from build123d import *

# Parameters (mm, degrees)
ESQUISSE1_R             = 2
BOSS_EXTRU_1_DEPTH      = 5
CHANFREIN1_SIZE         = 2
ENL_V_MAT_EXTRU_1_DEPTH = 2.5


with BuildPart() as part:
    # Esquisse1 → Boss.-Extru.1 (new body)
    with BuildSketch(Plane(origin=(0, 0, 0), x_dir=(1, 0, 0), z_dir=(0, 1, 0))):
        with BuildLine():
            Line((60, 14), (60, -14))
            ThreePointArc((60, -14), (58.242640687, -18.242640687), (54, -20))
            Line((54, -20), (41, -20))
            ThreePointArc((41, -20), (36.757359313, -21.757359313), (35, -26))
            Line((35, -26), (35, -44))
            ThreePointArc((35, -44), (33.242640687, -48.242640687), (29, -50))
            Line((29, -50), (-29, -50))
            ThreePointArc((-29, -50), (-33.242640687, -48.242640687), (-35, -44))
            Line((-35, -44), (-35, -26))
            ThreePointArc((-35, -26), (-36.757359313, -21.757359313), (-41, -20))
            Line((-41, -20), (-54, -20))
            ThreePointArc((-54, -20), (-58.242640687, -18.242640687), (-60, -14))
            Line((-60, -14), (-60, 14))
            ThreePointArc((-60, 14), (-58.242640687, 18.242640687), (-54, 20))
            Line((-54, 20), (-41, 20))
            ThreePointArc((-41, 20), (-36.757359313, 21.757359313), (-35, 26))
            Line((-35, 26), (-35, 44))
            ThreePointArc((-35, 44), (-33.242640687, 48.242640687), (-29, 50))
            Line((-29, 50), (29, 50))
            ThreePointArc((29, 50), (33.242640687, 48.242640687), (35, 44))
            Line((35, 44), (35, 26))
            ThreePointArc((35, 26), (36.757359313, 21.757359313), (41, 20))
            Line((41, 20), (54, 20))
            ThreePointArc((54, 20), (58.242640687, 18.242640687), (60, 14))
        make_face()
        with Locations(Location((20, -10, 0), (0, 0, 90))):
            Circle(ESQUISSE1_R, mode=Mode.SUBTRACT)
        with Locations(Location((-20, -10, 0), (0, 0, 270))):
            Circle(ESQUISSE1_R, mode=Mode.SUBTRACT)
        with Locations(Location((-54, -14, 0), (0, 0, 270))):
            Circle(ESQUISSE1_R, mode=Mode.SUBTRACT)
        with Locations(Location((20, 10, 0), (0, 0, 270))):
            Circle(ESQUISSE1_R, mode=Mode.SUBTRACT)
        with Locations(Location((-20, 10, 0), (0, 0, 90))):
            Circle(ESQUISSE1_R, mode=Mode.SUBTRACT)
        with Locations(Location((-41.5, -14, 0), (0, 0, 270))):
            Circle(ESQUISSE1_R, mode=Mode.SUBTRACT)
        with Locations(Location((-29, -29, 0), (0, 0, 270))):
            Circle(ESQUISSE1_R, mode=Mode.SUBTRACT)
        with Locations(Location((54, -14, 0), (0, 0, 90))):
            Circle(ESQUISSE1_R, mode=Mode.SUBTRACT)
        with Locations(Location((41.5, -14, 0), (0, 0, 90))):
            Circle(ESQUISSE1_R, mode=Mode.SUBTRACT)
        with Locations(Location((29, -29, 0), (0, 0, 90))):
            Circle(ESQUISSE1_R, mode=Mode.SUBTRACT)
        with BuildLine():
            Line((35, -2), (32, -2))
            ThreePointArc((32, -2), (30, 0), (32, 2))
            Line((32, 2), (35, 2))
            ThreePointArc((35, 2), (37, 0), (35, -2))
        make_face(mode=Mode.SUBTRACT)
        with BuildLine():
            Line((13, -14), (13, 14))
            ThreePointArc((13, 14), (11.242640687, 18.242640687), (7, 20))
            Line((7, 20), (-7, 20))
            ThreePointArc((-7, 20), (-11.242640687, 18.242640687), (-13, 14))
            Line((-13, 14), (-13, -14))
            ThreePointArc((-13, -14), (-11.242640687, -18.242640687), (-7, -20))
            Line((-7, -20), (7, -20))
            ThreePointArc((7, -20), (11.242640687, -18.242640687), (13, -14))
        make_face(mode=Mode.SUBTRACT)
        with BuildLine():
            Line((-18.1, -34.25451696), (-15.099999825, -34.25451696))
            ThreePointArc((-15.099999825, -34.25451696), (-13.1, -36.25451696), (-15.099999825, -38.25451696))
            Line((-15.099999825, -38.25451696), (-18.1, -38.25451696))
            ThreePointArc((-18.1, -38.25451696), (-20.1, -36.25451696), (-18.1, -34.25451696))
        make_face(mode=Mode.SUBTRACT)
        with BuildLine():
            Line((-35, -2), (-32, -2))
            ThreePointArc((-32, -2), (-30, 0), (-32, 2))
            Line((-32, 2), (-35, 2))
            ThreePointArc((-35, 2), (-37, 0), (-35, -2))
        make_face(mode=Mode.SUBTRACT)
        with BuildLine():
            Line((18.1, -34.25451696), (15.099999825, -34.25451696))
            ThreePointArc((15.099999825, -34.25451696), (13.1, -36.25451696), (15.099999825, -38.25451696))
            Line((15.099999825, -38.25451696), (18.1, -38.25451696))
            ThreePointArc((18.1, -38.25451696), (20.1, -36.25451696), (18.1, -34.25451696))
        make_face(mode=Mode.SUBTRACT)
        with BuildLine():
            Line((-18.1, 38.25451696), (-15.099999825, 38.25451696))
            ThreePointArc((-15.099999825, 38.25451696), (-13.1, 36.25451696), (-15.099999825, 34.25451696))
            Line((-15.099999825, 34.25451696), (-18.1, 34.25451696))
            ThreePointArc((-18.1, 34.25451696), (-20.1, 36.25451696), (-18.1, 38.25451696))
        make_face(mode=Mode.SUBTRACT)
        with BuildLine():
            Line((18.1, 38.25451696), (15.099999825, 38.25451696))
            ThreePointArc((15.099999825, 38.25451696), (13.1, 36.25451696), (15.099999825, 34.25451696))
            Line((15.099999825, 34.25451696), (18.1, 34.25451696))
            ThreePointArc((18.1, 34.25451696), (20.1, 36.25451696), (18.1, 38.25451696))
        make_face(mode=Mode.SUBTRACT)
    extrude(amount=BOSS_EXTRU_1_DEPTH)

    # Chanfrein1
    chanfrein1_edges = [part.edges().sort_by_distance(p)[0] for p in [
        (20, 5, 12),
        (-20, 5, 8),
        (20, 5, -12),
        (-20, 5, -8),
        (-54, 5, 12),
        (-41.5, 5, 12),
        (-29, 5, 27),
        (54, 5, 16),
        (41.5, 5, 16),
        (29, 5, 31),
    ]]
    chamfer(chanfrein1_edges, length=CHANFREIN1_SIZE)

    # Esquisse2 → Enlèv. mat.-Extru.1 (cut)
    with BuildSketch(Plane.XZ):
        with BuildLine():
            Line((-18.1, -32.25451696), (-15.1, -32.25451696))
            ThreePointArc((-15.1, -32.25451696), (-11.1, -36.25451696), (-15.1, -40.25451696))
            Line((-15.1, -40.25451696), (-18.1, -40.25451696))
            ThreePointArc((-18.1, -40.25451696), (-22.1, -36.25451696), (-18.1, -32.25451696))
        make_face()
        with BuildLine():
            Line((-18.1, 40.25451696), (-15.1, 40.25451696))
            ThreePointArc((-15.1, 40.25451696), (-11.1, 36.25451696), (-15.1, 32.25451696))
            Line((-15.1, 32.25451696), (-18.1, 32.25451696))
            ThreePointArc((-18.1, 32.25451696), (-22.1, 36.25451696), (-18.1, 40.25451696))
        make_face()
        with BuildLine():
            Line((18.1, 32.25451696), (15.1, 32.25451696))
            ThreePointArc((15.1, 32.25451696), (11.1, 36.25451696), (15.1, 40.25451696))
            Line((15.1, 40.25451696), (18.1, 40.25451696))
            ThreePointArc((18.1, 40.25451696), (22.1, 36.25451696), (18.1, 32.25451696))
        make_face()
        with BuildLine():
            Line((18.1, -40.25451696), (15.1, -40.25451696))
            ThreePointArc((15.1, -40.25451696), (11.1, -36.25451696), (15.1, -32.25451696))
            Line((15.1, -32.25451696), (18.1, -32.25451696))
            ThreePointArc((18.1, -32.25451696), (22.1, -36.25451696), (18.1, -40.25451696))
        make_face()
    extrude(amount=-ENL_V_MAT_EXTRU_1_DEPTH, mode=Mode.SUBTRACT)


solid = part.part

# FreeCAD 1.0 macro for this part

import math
import FreeCAD as App
import Part
import Sketcher
from FreeCAD import Vector
Q = App.Units.Quantity


def edges_at(feature, points):
    """Names of the edges that pass closest to the given points."""
    edges = feature.Shape.Edges
    near = lambda p: min(range(len(edges)), key=lambda i: edges[i].distToShape(Part.Vertex(*p))[0])
    return sorted({f"Edge{near(p) + 1}" for p in points})

doc = App.newDocument("Part")
params = doc.addObject("Spreadsheet::Sheet", "Params")
for row, (alias, value) in enumerate([
    ("sketch1_diameter", "4 mm"),
    ("sketch1_radius", "6 mm"),
    ("sketch1_width", "13 mm"),
    ("sketch1_width2", "58 mm"),
    ("sketch1_width3", "3 mm"),
    ("pad1_length", "5 mm"),
    ("chamfer_size", "2 mm"),
    ("sketch2_radius", "4 mm"),
    ("sketch2_width", "3 mm"),
    ("pocket1_length", "2.5 mm"),
], start=1):
    params.set(f"A{row}", alias)
    params.set(f"B{row}", "=" + value)
    params.setAlias(f"B{row}", alias)

body = doc.addObject("PartDesign::Body", "Body")

sketch1 = body.newObject("Sketcher::SketchObject", "Sketch")
sketch1.AttachmentSupport = (doc.getObject("XZ_Plane"), [""])
sketch1.MapMode = "FlatFace"
sketch1.addGeometry([
    Part.LineSegment(Vector(60, 14, 0), Vector(60, -14, 0)),
    Part.ArcOfCircle(Part.Circle(Vector(54, -14, 0), Vector(0, 0, 1), 6), math.radians(-90), math.radians(0)),
    Part.LineSegment(Vector(54, -20, 0), Vector(41, -20, 0)),
    Part.ArcOfCircle(Part.Circle(Vector(41, -26, 0), Vector(0, 0, 1), 6), math.radians(90), math.radians(180)),
    Part.LineSegment(Vector(35, -26, 0), Vector(35, -44, 0)),
    Part.ArcOfCircle(Part.Circle(Vector(29, -44, 0), Vector(0, 0, 1), 6), math.radians(-90), math.radians(0)),
    Part.LineSegment(Vector(29, -50, 0), Vector(-29, -50, 0)),
    Part.ArcOfCircle(Part.Circle(Vector(-29, -44, 0), Vector(0, 0, 1), 6), math.radians(180), math.radians(270)),
    Part.LineSegment(Vector(-35, -44, 0), Vector(-35, -26, 0)),
    Part.ArcOfCircle(Part.Circle(Vector(-41, -26, 0), Vector(0, 0, 1), 6), math.radians(0), math.radians(90)),
    Part.LineSegment(Vector(-41, -20, 0), Vector(-54, -20, 0)),
    Part.ArcOfCircle(Part.Circle(Vector(-54, -14, 0), Vector(0, 0, 1), 6), math.radians(180), math.radians(270)),
    Part.LineSegment(Vector(-60, -14, 0), Vector(-60, 14, 0)),
    Part.ArcOfCircle(Part.Circle(Vector(-54, 14, 0), Vector(0, 0, 1), 6), math.radians(90), math.radians(180)),
    Part.LineSegment(Vector(-54, 20, 0), Vector(-41, 20, 0)),
    Part.ArcOfCircle(Part.Circle(Vector(-41, 26, 0), Vector(0, 0, 1), 6), math.radians(-90), math.radians(0)),
    Part.LineSegment(Vector(-35, 26, 0), Vector(-35, 44, 0)),
    Part.ArcOfCircle(Part.Circle(Vector(-29, 44, 0), Vector(0, 0, 1), 6), math.radians(90), math.radians(180)),
    Part.LineSegment(Vector(-29, 50, 0), Vector(29, 50, 0)),
    Part.ArcOfCircle(Part.Circle(Vector(29, 44, 0), Vector(0, 0, 1), 6), math.radians(0), math.radians(90)),
    Part.LineSegment(Vector(35, 44, 0), Vector(35, 26, 0)),
    Part.ArcOfCircle(Part.Circle(Vector(41, 26, 0), Vector(0, 0, 1), 6), math.radians(180), math.radians(270)),
    Part.LineSegment(Vector(41, 20, 0), Vector(54, 20, 0)),
    Part.ArcOfCircle(Part.Circle(Vector(54, 14, 0), Vector(0, 0, 1), 6), math.radians(0), math.radians(90)),
    Part.Circle(Vector(29, 29, 0), Vector(0, 0, 1), 2),
    Part.ArcOfCircle(Part.Circle(Vector(18.1, 36.3, 0), Vector(0, 0, 1), 2), math.radians(-90), math.radians(90)),
    Part.LineSegment(Vector(18.1, 38.3, 0), Vector(15.1, 38.3, 0)),
    Part.ArcOfCircle(Part.Circle(Vector(15.1, 36.3, 0), Vector(0, 0, 1), 2), math.radians(90), math.radians(270)),
    Part.LineSegment(Vector(15.1, 34.3, 0), Vector(18.1, 34.3, 0)),
    Part.Circle(Vector(54, 14, 0), Vector(0, 0, 1), 2),
    Part.Circle(Vector(41.5, 14, 0), Vector(0, 0, 1), 2),
    Part.Circle(Vector(20, 10, 0), Vector(0, 0, 1), 2),
    Part.LineSegment(Vector(-18.1, 34.3, 0), Vector(-15.1, 34.3, 0)),
    Part.ArcOfCircle(Part.Circle(Vector(-15.1, 36.3, 0), Vector(0, 0, 1), 2), math.radians(-90), math.radians(90)),
    Part.LineSegment(Vector(-15.1, 38.3, 0), Vector(-18.1, 38.3, 0)),
    Part.ArcOfCircle(Part.Circle(Vector(-18.1, 36.3, 0), Vector(0, 0, 1), 2), math.radians(90), math.radians(270)),
    Part.Circle(Vector(-29, 29, 0), Vector(0, 0, 1), 2),
    Part.Circle(Vector(-20, 10, 0), Vector(0, 0, 1), 2),
    Part.ArcOfCircle(Part.Circle(Vector(7, 14, 0), Vector(0, 0, 1), 6), math.radians(0), math.radians(90)),
    Part.LineSegment(Vector(7, 20, 0), Vector(-7, 20, 0)),
    Part.ArcOfCircle(Part.Circle(Vector(-7, 14, 0), Vector(0, 0, 1), 6), math.radians(90), math.radians(180)),
    Part.LineSegment(Vector(-13, 14, 0), Vector(-13, -14, 0)),
    Part.ArcOfCircle(Part.Circle(Vector(-7, -14, 0), Vector(0, 0, 1), 6), math.radians(180), math.radians(270)),
    Part.LineSegment(Vector(-7, -20, 0), Vector(7, -20, 0)),
    Part.ArcOfCircle(Part.Circle(Vector(7, -14, 0), Vector(0, 0, 1), 6), math.radians(-90), math.radians(0)),
    Part.LineSegment(Vector(13, -14, 0), Vector(13, 14, 0)),
    Part.Circle(Vector(-41.5, 14, 0), Vector(0, 0, 1), 2),
    Part.Circle(Vector(-54, 14, 0), Vector(0, 0, 1), 2),
    Part.LineSegment(Vector(35, 2, 0), Vector(32, 2, 0)),
    Part.ArcOfCircle(Part.Circle(Vector(32, 0, 0), Vector(0, 0, 1), 2), math.radians(90), math.radians(270)),
    Part.LineSegment(Vector(32, -2, 0), Vector(35, -2, 0)),
    Part.ArcOfCircle(Part.Circle(Vector(35, 0, 0), Vector(0, 0, 1), 2), math.radians(-90), math.radians(90)),
    Part.Circle(Vector(20, -10, 0), Vector(0, 0, 1), 2),
    Part.ArcOfCircle(Part.Circle(Vector(18.1, -36.3, 0), Vector(0, 0, 1), 2), math.radians(-90), math.radians(90)),
    Part.LineSegment(Vector(18.1, -34.3, 0), Vector(15.1, -34.3, 0)),
    Part.ArcOfCircle(Part.Circle(Vector(15.1, -36.3, 0), Vector(0, 0, 1), 2), math.radians(90), math.radians(270)),
    Part.LineSegment(Vector(15.1, -38.3, 0), Vector(18.1, -38.3, 0)),
    Part.Circle(Vector(-20, -10, 0), Vector(0, 0, 1), 2),
    Part.ArcOfCircle(Part.Circle(Vector(-35, 0, 0), Vector(0, 0, 1), 2), math.radians(90), math.radians(270)),
    Part.LineSegment(Vector(-35, -2, 0), Vector(-32, -2, 0)),
    Part.ArcOfCircle(Part.Circle(Vector(-32, 0, 0), Vector(0, 0, 1), 2), math.radians(-90), math.radians(90)),
    Part.LineSegment(Vector(-32, 2, 0), Vector(-35, 2, 0)),
    Part.LineSegment(Vector(-18.1, -38.3, 0), Vector(-15.1, -38.3, 0)),
    Part.ArcOfCircle(Part.Circle(Vector(-15.1, -36.3, 0), Vector(0, 0, 1), 2), math.radians(-90), math.radians(90)),
    Part.LineSegment(Vector(-15.1, -34.3, 0), Vector(-18.1, -34.3, 0)),
    Part.ArcOfCircle(Part.Circle(Vector(-18.1, -36.3, 0), Vector(0, 0, 1), 2), math.radians(90), math.radians(270)),
], False)
sketch1.addConstraint([
    Sketcher.Constraint("Tangent", 0, 2, 1, 2),
    Sketcher.Constraint("Tangent", 1, 1, 2, 1),
    Sketcher.Constraint("Tangent", 2, 2, 3, 1),
    Sketcher.Constraint("Tangent", 3, 2, 4, 1),
    Sketcher.Constraint("Tangent", 4, 2, 5, 2),
    Sketcher.Constraint("Tangent", 5, 1, 6, 1),
    Sketcher.Constraint("Tangent", 6, 2, 7, 2),
    Sketcher.Constraint("Tangent", 7, 1, 8, 1),
    Sketcher.Constraint("Tangent", 8, 2, 9, 1),
    Sketcher.Constraint("Tangent", 9, 2, 10, 1),
    Sketcher.Constraint("Tangent", 10, 2, 11, 2),
    Sketcher.Constraint("Tangent", 11, 1, 12, 1),
    Sketcher.Constraint("Tangent", 12, 2, 13, 2),
    Sketcher.Constraint("Tangent", 13, 1, 14, 1),
    Sketcher.Constraint("Tangent", 14, 2, 15, 1),
    Sketcher.Constraint("Tangent", 15, 2, 16, 1),
    Sketcher.Constraint("Tangent", 16, 2, 17, 2),
    Sketcher.Constraint("Tangent", 17, 1, 18, 1),
    Sketcher.Constraint("Tangent", 18, 2, 19, 2),
    Sketcher.Constraint("Tangent", 19, 1, 20, 1),
    Sketcher.Constraint("Tangent", 20, 2, 21, 1),
    Sketcher.Constraint("Tangent", 21, 2, 22, 1),
    Sketcher.Constraint("Tangent", 22, 2, 23, 2),
    Sketcher.Constraint("Tangent", 23, 1, 0, 1),
    Sketcher.Constraint("Tangent", 25, 2, 26, 1),
    Sketcher.Constraint("Tangent", 26, 2, 27, 1),
    Sketcher.Constraint("Tangent", 27, 2, 28, 1),
    Sketcher.Constraint("Tangent", 28, 2, 25, 1),
    Sketcher.Constraint("Tangent", 32, 2, 33, 1),
    Sketcher.Constraint("Tangent", 33, 2, 34, 1),
    Sketcher.Constraint("Tangent", 34, 2, 35, 1),
    Sketcher.Constraint("Tangent", 35, 2, 32, 1),
    Sketcher.Constraint("Tangent", 38, 2, 39, 1),
    Sketcher.Constraint("Tangent", 39, 2, 40, 1),
    Sketcher.Constraint("Tangent", 40, 2, 41, 1),
    Sketcher.Constraint("Tangent", 41, 2, 42, 1),
    Sketcher.Constraint("Tangent", 42, 2, 43, 1),
    Sketcher.Constraint("Tangent", 43, 2, 44, 1),
    Sketcher.Constraint("Tangent", 44, 2, 45, 1),
    Sketcher.Constraint("Tangent", 45, 2, 38, 1),
    Sketcher.Constraint("Tangent", 48, 2, 49, 1),
    Sketcher.Constraint("Tangent", 49, 2, 50, 1),
    Sketcher.Constraint("Tangent", 50, 2, 51, 1),
    Sketcher.Constraint("Tangent", 51, 2, 48, 1),
    Sketcher.Constraint("Tangent", 53, 2, 54, 1),
    Sketcher.Constraint("Tangent", 54, 2, 55, 1),
    Sketcher.Constraint("Tangent", 55, 2, 56, 1),
    Sketcher.Constraint("Tangent", 56, 2, 53, 1),
    Sketcher.Constraint("Tangent", 58, 2, 59, 1),
    Sketcher.Constraint("Tangent", 59, 2, 60, 1),
    Sketcher.Constraint("Tangent", 60, 2, 61, 1),
    Sketcher.Constraint("Tangent", 61, 2, 58, 1),
    Sketcher.Constraint("Tangent", 62, 2, 63, 1),
    Sketcher.Constraint("Tangent", 63, 2, 64, 1),
    Sketcher.Constraint("Tangent", 64, 2, 65, 1),
    Sketcher.Constraint("Tangent", 65, 2, 62, 1),
    Sketcher.Constraint("Vertical", 0),
    Sketcher.Constraint("Horizontal", 2),
    Sketcher.Constraint("Vertical", 4),
    Sketcher.Constraint("Horizontal", 6),
    Sketcher.Constraint("Vertical", 8),
    Sketcher.Constraint("Horizontal", 10),
    Sketcher.Constraint("Vertical", 12),
    Sketcher.Constraint("Horizontal", 14),
    Sketcher.Constraint("Vertical", 16),
    Sketcher.Constraint("Horizontal", 18),
    Sketcher.Constraint("Vertical", 20),
    Sketcher.Constraint("Horizontal", 22),
    Sketcher.Constraint("Horizontal", 26),
    Sketcher.Constraint("Horizontal", 28),
    Sketcher.Constraint("Horizontal", 32),
    Sketcher.Constraint("Horizontal", 34),
    Sketcher.Constraint("Horizontal", 39),
    Sketcher.Constraint("Vertical", 41),
    Sketcher.Constraint("Horizontal", 43),
    Sketcher.Constraint("Vertical", 45),
    Sketcher.Constraint("Horizontal", 48),
    Sketcher.Constraint("Horizontal", 50),
    Sketcher.Constraint("Horizontal", 54),
    Sketcher.Constraint("Horizontal", 56),
    Sketcher.Constraint("Horizontal", 59),
    Sketcher.Constraint("Horizontal", 61),
    Sketcher.Constraint("Horizontal", 62),
    Sketcher.Constraint("Horizontal", 64),
    Sketcher.Constraint("Coincident", 29, 3, 23, 3),
    Sketcher.Constraint("Coincident", 47, 3, 13, 3),
    Sketcher.Constraint("Equal", 1, 3),
    Sketcher.Constraint("Equal", 3, 5),
    Sketcher.Constraint("Equal", 5, 7),
    Sketcher.Constraint("Equal", 7, 9),
    Sketcher.Constraint("Equal", 9, 11),
    Sketcher.Constraint("Equal", 11, 13),
    Sketcher.Constraint("Equal", 13, 15),
    Sketcher.Constraint("Equal", 15, 17),
    Sketcher.Constraint("Equal", 17, 19),
    Sketcher.Constraint("Equal", 19, 21),
    Sketcher.Constraint("Equal", 21, 23),
    Sketcher.Constraint("Equal", 24, 25),
    Sketcher.Constraint("Equal", 27, 29),
    Sketcher.Constraint("Equal", 29, 30),
    Sketcher.Constraint("Equal", 30, 31),
    Sketcher.Constraint("Equal", 31, 33),
    Sketcher.Constraint("Equal", 35, 36),
    Sketcher.Constraint("Equal", 36, 37),
    Sketcher.Constraint("Equal", 23, 38),
    Sketcher.Constraint("Equal", 38, 40),
    Sketcher.Constraint("Equal", 40, 42),
    Sketcher.Constraint("Equal", 42, 44),
    Sketcher.Constraint("Equal", 37, 46),
    Sketcher.Constraint("Equal", 46, 47),
    Sketcher.Constraint("Equal", 47, 49),
    Sketcher.Constraint("Equal", 51, 52),
    Sketcher.Constraint("Equal", 52, 53),
    Sketcher.Constraint("Equal", 55, 57),
    Sketcher.Constraint("Equal", 57, 58),
    Sketcher.Constraint("Equal", 60, 63),
    Sketcher.Constraint("Symmetric", 1, 3, 13, 3, -1, 1),
    Sketcher.Constraint("Symmetric", 5, 3, 17, 3, -1, 1),
    Sketcher.Constraint("Symmetric", 9, 3, 21, 3, -1, 1),
    Sketcher.Constraint("Symmetric", 38, 3, 42, 3, -1, 1),
    Sketcher.Constraint("Symmetric", 37, 3, 52, 3, -1, 1),
    Sketcher.Constraint("Symmetric", 35, 3, 53, 3, -1, 1),
    Sketcher.Constraint("Symmetric", 31, 3, 57, 3, -1, 1),
    Sketcher.Constraint("Symmetric", 51, 3, 58, 3, -1, 1),
    Sketcher.Constraint("Symmetric", 27, 3, 63, 3, -1, 1),
    Sketcher.Constraint("Symmetric", 3, 3, 9, 3, -2),
    Sketcher.Constraint("Symmetric", 27, 3, 33, 3, -2),
    Sketcher.Constraint("Symmetric", 24, 3, 36, 3, -2),
    Sketcher.Constraint("Symmetric", 31, 3, 37, 3, -2),
    Sketcher.Constraint("Symmetric", 30, 3, 46, 3, -2),
    Sketcher.Constraint("Symmetric", 49, 3, 60, 3, -2),
    Sketcher.Constraint("Horizontal", 29, 3, 30, 3),
    Sketcher.Constraint("Horizontal", 30, 3, 38, 3),
    Sketcher.Constraint("Vertical", 19, 3, 24, 3),
    Sketcher.Constraint("Vertical", 25, 3, 53, 3),
    Sketcher.Constraint("Vertical", 27, 3, 55, 3),
    Sketcher.Constraint("Vertical", 35, 3, 65, 3),
    Sketcher.Constraint("Vertical", 51, 3, 3, 2),
    Sketcher.Constraint("Equal", 34, 48),
    Sketcher.Constraint("Diameter", 24, Q("4 mm")),
    Sketcher.Constraint("Radius", 1, Q("6 mm")),
    Sketcher.Constraint("DistanceX", 2, 2, 2, 1, Q("13 mm")),
    Sketcher.Constraint("DistanceX", 6, 2, 6, 1, Q("58 mm")),
    Sketcher.Constraint("DistanceX", 26, 2, 26, 1, Q("3 mm")),
    Sketcher.Constraint("DistanceX", 39, 2, 39, 1, Q("14 mm")),
    Sketcher.Constraint("DistanceY", 0, 2, 0, 1, Q("28 mm")),
    Sketcher.Constraint("DistanceY", 4, 2, 4, 1, Q("18 mm")),
    Sketcher.Constraint("DistanceY", -1, 1, 24, 3, Q("29 mm")),
    Sketcher.Constraint("DistanceX", -1, 1, 31, 3, Q("20 mm")),
    Sketcher.Constraint("DistanceY", -1, 1, 31, 3, Q("10 mm")),
    Sketcher.Constraint("DistanceX", -1, 1, 25, 3, Q("18.1 mm")),
    Sketcher.Constraint("DistanceX", -1, 1, 30, 3, Q("41.5 mm")),
    Sketcher.Constraint("DistanceY", -1, 1, 25, 3, Q("36.254517 mm")),
])
sketch1.setExpression("Constraints[139]", "Params.sketch1_diameter")
sketch1.setExpression("Constraints[140]", "Params.sketch1_radius")
sketch1.setExpression("Constraints[141]", "Params.sketch1_width")
sketch1.setExpression("Constraints[142]", "Params.sketch1_width2")
sketch1.setExpression("Constraints[143]", "Params.sketch1_width3")
pad1 = body.newObject("PartDesign::Pad", "Pad")
pad1.Profile = sketch1
pad1.setExpression("Length", "Params.pad1_length")
pad1.Reversed = True
doc.recompute()

chamfer = body.newObject("PartDesign::Chamfer", "Chamfer")
chamfer.Base = (pad1, edges_at(pad1, [
    (20, 5, 12),
    (-20, 5, 8),
    (20, 5, -12),
    (-20, 5, -8),
    (-54, 5, 12),
    (-41.5, 5, 12),
    (-29, 5, 27),
    (54, 5, 16),
    (41.5, 5, 16),
    (29, 5, 31),
]))
chamfer.setExpression("Size", "Params.chamfer_size")

sketch2 = body.newObject("Sketcher::SketchObject", "Sketch001")
sketch2.AttachmentSupport = (doc.getObject("XZ_Plane"), [""])
sketch2.MapMode = "FlatFace"
sketch2.addGeometry([
    Part.LineSegment(Vector(-15.1, -32.3, 0), Vector(-18.1, -32.3, 0)),
    Part.ArcOfCircle(Part.Circle(Vector(-18.1, -36.3, 0), Vector(0, 0, 1), 4), math.radians(90), math.radians(270)),
    Part.LineSegment(Vector(-18.1, -40.3, 0), Vector(-15.1, -40.3, 0)),
    Part.ArcOfCircle(Part.Circle(Vector(-15.1, -36.3, 0), Vector(0, 0, 1), 4), math.radians(-90), math.radians(90)),
    Part.LineSegment(Vector(-15.1, 40.3, 0), Vector(-18.1, 40.3, 0)),
    Part.ArcOfCircle(Part.Circle(Vector(-18.1, 36.3, 0), Vector(0, 0, 1), 4), math.radians(90), math.radians(270)),
    Part.LineSegment(Vector(-18.1, 32.3, 0), Vector(-15.1, 32.3, 0)),
    Part.ArcOfCircle(Part.Circle(Vector(-15.1, 36.3, 0), Vector(0, 0, 1), 4), math.radians(-90), math.radians(90)),
    Part.LineSegment(Vector(15.1, 32.3, 0), Vector(18.1, 32.3, 0)),
    Part.ArcOfCircle(Part.Circle(Vector(18.1, 36.3, 0), Vector(0, 0, 1), 4), math.radians(-90), math.radians(90)),
    Part.LineSegment(Vector(18.1, 40.3, 0), Vector(15.1, 40.3, 0)),
    Part.ArcOfCircle(Part.Circle(Vector(15.1, 36.3, 0), Vector(0, 0, 1), 4), math.radians(90), math.radians(270)),
    Part.LineSegment(Vector(15.1, -40.3, 0), Vector(18.1, -40.3, 0)),
    Part.ArcOfCircle(Part.Circle(Vector(18.1, -36.3, 0), Vector(0, 0, 1), 4), math.radians(-90), math.radians(90)),
    Part.LineSegment(Vector(18.1, -32.3, 0), Vector(15.1, -32.3, 0)),
    Part.ArcOfCircle(Part.Circle(Vector(15.1, -36.3, 0), Vector(0, 0, 1), 4), math.radians(90), math.radians(270)),
], False)
sketch2.addConstraint([
    Sketcher.Constraint("Tangent", 0, 2, 1, 1),
    Sketcher.Constraint("Tangent", 1, 2, 2, 1),
    Sketcher.Constraint("Tangent", 2, 2, 3, 1),
    Sketcher.Constraint("Tangent", 3, 2, 0, 1),
    Sketcher.Constraint("Tangent", 4, 2, 5, 1),
    Sketcher.Constraint("Tangent", 5, 2, 6, 1),
    Sketcher.Constraint("Tangent", 6, 2, 7, 1),
    Sketcher.Constraint("Tangent", 7, 2, 4, 1),
    Sketcher.Constraint("Tangent", 8, 2, 9, 1),
    Sketcher.Constraint("Tangent", 9, 2, 10, 1),
    Sketcher.Constraint("Tangent", 10, 2, 11, 1),
    Sketcher.Constraint("Tangent", 11, 2, 8, 1),
    Sketcher.Constraint("Tangent", 12, 2, 13, 1),
    Sketcher.Constraint("Tangent", 13, 2, 14, 1),
    Sketcher.Constraint("Tangent", 14, 2, 15, 1),
    Sketcher.Constraint("Tangent", 15, 2, 12, 1),
    Sketcher.Constraint("Horizontal", 0),
    Sketcher.Constraint("Horizontal", 2),
    Sketcher.Constraint("Horizontal", 4),
    Sketcher.Constraint("Horizontal", 6),
    Sketcher.Constraint("Horizontal", 8),
    Sketcher.Constraint("Horizontal", 10),
    Sketcher.Constraint("Horizontal", 12),
    Sketcher.Constraint("Horizontal", 14),
    Sketcher.Constraint("Equal", 3, 5),
    Sketcher.Constraint("Equal", 7, 9),
    Sketcher.Constraint("Equal", 11, 13),
    Sketcher.Constraint("Symmetric", 1, 3, 9, 3, -1, 1),
    Sketcher.Constraint("Symmetric", 5, 3, 13, 3, -1, 1),
    Sketcher.Constraint("Symmetric", 5, 3, 9, 3, -2),
    Sketcher.Constraint("Vertical", 3, 3, 7, 3),
    Sketcher.Constraint("Vertical", 11, 3, 15, 3),
    Sketcher.Constraint("Equal", 6, 8),
    Sketcher.Constraint("Radius", 1, Q("4 mm")),
    Sketcher.Constraint("DistanceX", 0, 2, 0, 1, Q("3 mm")),
    Sketcher.Constraint("DistanceX", 1, 3, -1, 1, Q("18.1 mm")),
    Sketcher.Constraint("DistanceY", 1, 3, -1, 1, Q("36.254517 mm")),
])
sketch2.setExpression("Constraints[33]", "Params.sketch2_radius")
sketch2.setExpression("Constraints[34]", "Params.sketch2_width")
pocket1 = body.newObject("PartDesign::Pocket", "Pocket")
pocket1.Profile = sketch2
pocket1.setExpression("Length", "Params.pocket1_length")

doc.recompute()
